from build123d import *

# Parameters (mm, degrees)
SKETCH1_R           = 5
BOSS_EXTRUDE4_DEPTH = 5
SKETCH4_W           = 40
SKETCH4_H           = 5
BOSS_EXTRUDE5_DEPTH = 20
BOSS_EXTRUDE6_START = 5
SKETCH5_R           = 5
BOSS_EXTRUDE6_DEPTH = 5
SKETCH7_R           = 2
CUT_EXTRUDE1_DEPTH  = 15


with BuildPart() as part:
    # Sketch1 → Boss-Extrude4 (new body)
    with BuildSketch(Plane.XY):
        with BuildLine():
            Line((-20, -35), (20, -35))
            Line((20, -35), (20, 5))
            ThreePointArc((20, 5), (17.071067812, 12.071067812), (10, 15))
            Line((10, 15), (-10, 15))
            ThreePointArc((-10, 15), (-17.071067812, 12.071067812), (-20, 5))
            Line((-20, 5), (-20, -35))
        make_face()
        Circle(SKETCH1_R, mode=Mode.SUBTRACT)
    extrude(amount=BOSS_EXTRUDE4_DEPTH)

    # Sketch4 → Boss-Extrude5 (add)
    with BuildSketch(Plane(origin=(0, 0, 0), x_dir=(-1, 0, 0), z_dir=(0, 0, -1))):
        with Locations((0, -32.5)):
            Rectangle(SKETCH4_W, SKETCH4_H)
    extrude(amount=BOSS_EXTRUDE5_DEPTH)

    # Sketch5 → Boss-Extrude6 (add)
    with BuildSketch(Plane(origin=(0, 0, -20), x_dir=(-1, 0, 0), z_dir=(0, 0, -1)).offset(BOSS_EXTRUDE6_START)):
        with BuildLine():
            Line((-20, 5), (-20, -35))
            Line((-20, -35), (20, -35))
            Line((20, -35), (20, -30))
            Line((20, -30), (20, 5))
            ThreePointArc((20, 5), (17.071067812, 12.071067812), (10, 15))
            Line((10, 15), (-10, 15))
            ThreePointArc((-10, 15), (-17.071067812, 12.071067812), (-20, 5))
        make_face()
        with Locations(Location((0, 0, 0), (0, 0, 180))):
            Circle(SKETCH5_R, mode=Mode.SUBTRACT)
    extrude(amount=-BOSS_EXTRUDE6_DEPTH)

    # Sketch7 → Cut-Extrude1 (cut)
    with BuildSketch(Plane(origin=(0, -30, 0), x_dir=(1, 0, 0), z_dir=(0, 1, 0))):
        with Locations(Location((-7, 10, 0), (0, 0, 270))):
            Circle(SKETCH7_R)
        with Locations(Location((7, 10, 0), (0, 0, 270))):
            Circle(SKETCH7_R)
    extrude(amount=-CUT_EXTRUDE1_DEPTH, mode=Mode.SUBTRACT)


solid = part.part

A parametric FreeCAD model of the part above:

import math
import FreeCAD as App
import Part
import Sketcher
Q = App.Units.Quantity

doc = App.newDocument("Part")
body = doc.addObject("PartDesign::Body", "Body")

# Sketch on XY plane
sketch1 = body.newObject("Sketcher::SketchObject", "Sketch")
sketch1.AttachmentSupport = (doc.getObject("XY_Plane"), [""])
sketch1.MapMode = "FlatFace"
sketch1.addGeometry([
    Part.LineSegment(App.Vector(-20, -35, 0), App.Vector(20, -35, 0)),  # 0
    Part.LineSegment(App.Vector(20, -35, 0), App.Vector(20, 5, 0)),  # 1
    Part.ArcOfCircle(Part.Circle(App.Vector(10, 5, 0), App.Vector(0, 0, 1), 10), math.radians(0), math.radians(90)),  # 2
    Part.LineSegment(App.Vector(10, 15, 0), App.Vector(-10, 15, 0)),  # 3
    Part.ArcOfCircle(Part.Circle(App.Vector(-10, 5, 0), App.Vector(0, 0, 1), 10), math.radians(90), math.radians(180)),  # 4
    Part.LineSegment(App.Vector(-20, 5, 0), App.Vector(-20, -35, 0)),  # 5
    Part.Circle(App.Vector(0, 0, 0), App.Vector(0, 0, 1), 5),  # 6
], False)
sketch1.addConstraint([
    Sketcher.Constraint("Coincident", 0, 2, 1, 1),
    Sketcher.Constraint("Tangent", 1, 2, 2, 1),
    Sketcher.Constraint("Tangent", 2, 2, 3, 1),
    Sketcher.Constraint("Tangent", 3, 2, 4, 1),
    Sketcher.Constraint("Tangent", 4, 2, 5, 1),
    Sketcher.Constraint("Coincident", 5, 2, 0, 1),
    Sketcher.Constraint("Horizontal", 0),
    Sketcher.Constraint("Vertical", 1),
    Sketcher.Constraint("Horizontal", 3),
    Sketcher.Constraint("Vertical", 5),
    Sketcher.Constraint("Coincident", 6, 3, -1, 1),
    Sketcher.Constraint("Equal", 2, 4),
    Sketcher.Constraint("Equal", 0, 1),
    Sketcher.Constraint("Diameter", 6, Q("10 mm")),
    Sketcher.Constraint("Radius", 2, Q("10 mm")),
    Sketcher.Constraint("DistanceX", 0, 1, 0, 2, Q("40 mm")),
    Sketcher.Constraint("DistanceX", -1, 1, 2, 3, Q("10 mm")),
    Sketcher.Constraint("DistanceY", -1, 1, 2, 3, Q("5 mm")),
])
pad1 = body.newObject("PartDesign::Pad", "Pad")
pad1.Profile = sketch1
pad1.Length = 5

# Sketch on XY plane
sketch2 = body.newObject("Sketcher::SketchObject", "Sketch001")
sketch2.AttachmentSupport = (doc.getObject("XY_Plane"), [""])
sketch2.MapMode = "FlatFace"
sketch2.addGeometry([
    Part.LineSegment(App.Vector(20, -30, 0), App.Vector(20, -35, 0)),
    Part.LineSegment(App.Vector(20, -35, 0), App.Vector(-20, -35, 0)),
    Part.LineSegment(App.Vector(-20, -35, 0), App.Vector(-20, -30, 0)),
    Part.LineSegment(App.Vector(-20, -30, 0), App.Vector(20, -30, 0)),
], False)
sketch2.addConstraint([
    Sketcher.Constraint("Coincident", 0, 2, 1, 1),
    Sketcher.Constraint("Coincident", 1, 2, 2, 1),
    Sketcher.Constraint("Coincident", 2, 2, 3, 1),
    Sketcher.Constraint("Coincident", 3, 2, 0, 1),
    Sketcher.Constraint("Vertical", 0),
    Sketcher.Constraint("Horizontal", 1),
    Sketcher.Constraint("Vertical", 2),
    Sketcher.Constraint("Horizontal", 3),
    Sketcher.Constraint("DistanceX", 1, 2, 1, 1, Q("40 mm")),
    Sketcher.Constraint("DistanceY", 0, 2, 0, 1, Q("5 mm")),
    Sketcher.Constraint("DistanceX", -1, 1, 0, 2, Q("20 mm")),
    Sketcher.Constraint("DistanceY", 0, 2, -1, 1, Q("35 mm")),
])
pad2 = body.newObject("PartDesign::Pad", "Pad001")
pad2.Profile = sketch2
pad2.Length = 20
pad2.Reversed = True

# Sketch on XY plane
sketch3 = body.newObject("Sketcher::SketchObject", "Sketch002")
sketch3.AttachmentSupport = (doc.getObject("XY_Plane"), [""])
sketch3.MapMode = "FlatFace"
sketch3.AttachmentOffset = App.Placement(App.Vector(0, 0, -25), App.Rotation())
sketch3.addGeometry([
    Part.LineSegment(App.Vector(20, 5, 0), App.Vector(20, -35, 0)),  # 0
    Part.LineSegment(App.Vector(20, -35, 0), App.Vector(-20, -35, 0)),  # 1
    Part.LineSegment(App.Vector(-20, -35, 0), App.Vector(-20, 5, 0)),  # 2
    Part.ArcOfCircle(Part.Circle(App.Vector(-10, 5, 0), App.Vector(0, 0, 1), 10), math.radians(90), math.radians(180)),  # 3
    Part.LineSegment(App.Vector(-10, 15, 0), App.Vector(10, 15, 0)),  # 4
    Part.ArcOfCircle(Part.Circle(App.Vector(10, 5, 0), App.Vector(0, 0, 1), 10), math.radians(0), math.radians(90)),  # 5
    Part.Circle(App.Vector(0, 0, 0), App.Vector(0, 0, 1), 5),  # 6
], False)
sketch3.addConstraint([
    Sketcher.Constraint("Coincident", 0, 2, 1, 1),
    Sketcher.Constraint("Coincident", 1, 2, 2, 1),
    Sketcher.Constraint("Tangent", 2, 2, 3, 2),
    Sketcher.Constraint("Tangent", 3, 1, 4, 1),
    Sketcher.Constraint("Tangent", 4, 2, 5, 2),
    Sketcher.Constraint("Tangent", 5, 1, 0, 1),
    Sketcher.Constraint("Vertical", 0),
    Sketcher.Constraint("Horizontal", 1),
    Sketcher.Constraint("Vertical", 2),
    Sketcher.Constraint("Horizontal", 4),
    Sketcher.Constraint("Coincident", 6, 3, -1, 1),
    Sketcher.Constraint("Equal", 3, 5),
    Sketcher.Constraint("Equal", 1, 0),
    Sketcher.Constraint("Diameter", 6, Q("10 mm")),
    Sketcher.Constraint("Radius", 3, Q("10 mm")),
    Sketcher.Constraint("DistanceX", 1, 2, 1, 1, Q("40 mm")),
    Sketcher.Constraint("DistanceX", 3, 3, -1, 1, Q("10 mm")),
    Sketcher.Constraint("DistanceY", -1, 1, 3, 3, Q("5 mm")),
])
pad3 = body.newObject("PartDesign::Pad", "Pad002")
pad3.Profile = sketch3
pad3.Length = 5

# Sketch on XZ plane
sketch4 = body.newObject("Sketcher::SketchObject", "Sketch003")
sketch4.AttachmentSupport = (doc.getObject("XZ_Plane"), [""])
sketch4.MapMode = "FlatFace"
sketch4.AttachmentOffset = App.Placement(App.Vector(0, 0, 30), App.Rotation())
sketch4.addGeometry([
    Part.Circle(App.Vector(-7, -10, 0), App.Vector(0, 0, 1), 2),
    Part.Circle(App.Vector(7, -10, 0), App.Vector(0, 0, 1), 2),
], False)
sketch4.addConstraint([
    Sketcher.Constraint("Equal", 0, 1),
    Sketcher.Constraint("Symmetric", 0, 3, 1, 3, -2),
    Sketcher.Constraint("Diameter", 0, Q("4 mm")),
    Sketcher.Constraint("DistanceX", 0, 3, -1, 1, Q("7 mm")),
    Sketcher.Constraint("DistanceY", 0, 3, -1, 1, Q("10 mm")),
])
pocket1 = body.newObject("PartDesign::Pocket", "Pocket")
pocket1.Profile = sketch4
pocket1.Length = 15
pocket1.Reversed = True

doc.recompute()
